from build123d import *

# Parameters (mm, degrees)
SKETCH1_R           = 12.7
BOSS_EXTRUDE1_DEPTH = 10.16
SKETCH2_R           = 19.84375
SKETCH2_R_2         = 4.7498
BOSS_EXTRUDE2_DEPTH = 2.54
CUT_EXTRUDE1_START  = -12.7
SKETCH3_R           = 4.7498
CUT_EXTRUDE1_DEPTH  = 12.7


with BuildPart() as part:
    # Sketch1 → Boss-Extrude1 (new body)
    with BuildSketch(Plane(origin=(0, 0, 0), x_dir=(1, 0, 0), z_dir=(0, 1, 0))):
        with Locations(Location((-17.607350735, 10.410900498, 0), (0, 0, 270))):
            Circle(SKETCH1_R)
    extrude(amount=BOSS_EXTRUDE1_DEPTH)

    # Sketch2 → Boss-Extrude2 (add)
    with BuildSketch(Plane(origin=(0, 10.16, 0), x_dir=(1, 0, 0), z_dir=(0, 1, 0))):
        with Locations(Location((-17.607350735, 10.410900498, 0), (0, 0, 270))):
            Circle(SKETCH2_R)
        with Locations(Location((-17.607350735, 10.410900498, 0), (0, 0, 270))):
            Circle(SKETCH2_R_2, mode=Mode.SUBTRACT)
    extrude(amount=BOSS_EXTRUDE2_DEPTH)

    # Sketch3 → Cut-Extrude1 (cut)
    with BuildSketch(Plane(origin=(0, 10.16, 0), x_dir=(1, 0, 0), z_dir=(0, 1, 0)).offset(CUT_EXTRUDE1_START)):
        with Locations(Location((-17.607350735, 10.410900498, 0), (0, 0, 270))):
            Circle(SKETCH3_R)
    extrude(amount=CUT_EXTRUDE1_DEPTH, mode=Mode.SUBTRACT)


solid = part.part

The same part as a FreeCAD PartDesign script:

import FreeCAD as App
import Part
import Sketcher
Q = App.Units.Quantity

doc = App.newDocument("Part")
body = doc.addObject("PartDesign::Body", "Body")

# Sketch on XZ plane
sketch1 = doc.addObject("Sketcher::SketchObject", "Sketch")
body.addObject(sketch1)
sketch1.AttachmentSupport = (doc.XZ_Plane, [""])
sketch1.MapMode = "FlatFace"
sketch1.addGeometry(Part.Circle(App.Vector(-18, -10, 0), App.Vector(0, 0, 1), 13), False)
sketch1.addConstraint(Sketcher.Constraint("Diameter", 0, Q("1 in")))
sketch1.addConstraint(Sketcher.Constraint("DistanceY", 0, 3, -1, 1, Q("10.4109 mm")))
sketch1.addConstraint(Sketcher.Constraint("DistanceX", 0, 3, -1, 1, Q("17.607351 mm")))
pad1 = doc.addObject("PartDesign::Pad", "Pad")
body.addObject(pad1)
pad1.Profile = sketch1
pad1.Length = Q("0.4 in")
pad1.Reversed = True

# Sketch on XZ plane
sketch2 = doc.addObject("Sketcher::SketchObject", "Sketch001")
body.addObject(sketch2)
sketch2.AttachmentSupport = (doc.XZ_Plane, [""])
sketch2.MapMode = "FlatFace"
sketch2.AttachmentOffset = App.Placement(App.Vector(0, 0, -0.4 * 25.4), App.Rotation())
sketch2.addGeometry(Part.Circle(App.Vector(-17.6, -10.4, 0), App.Vector(0, 0, 1), 19.8), False)
sketch2.addGeometry(Part.Circle(App.Vector(-17.6, -10.4, 0), App.Vector(0, 0, 1), 4.7), False)
sketch2.addConstraint(Sketcher.Constraint("Coincident", 1, 3, 0, 3))
sketch2.addConstraint(Sketcher.Constraint("Diameter", 0, Q("1.5625 in")))
sketch2.addConstraint(Sketcher.Constraint("Diameter", 1, Q("0.374 in")))
sketch2.addConstraint(Sketcher.Constraint("DistanceY", 0, 3, -1, 1, Q("10.4109 mm")))
sketch2.addConstraint(Sketcher.Constraint("DistanceX", 0, 3, -1, 1, Q("17.607351 mm")))
pad2 = doc.addObject("PartDesign::Pad", "Pad001")
body.addObject(pad2)
pad2.Profile = sketch2
pad2.Length = Q("0.1 in")
pad2.Reversed = True

# Sketch on XZ plane
sketch3 = doc.addObject("Sketcher::SketchObject", "Sketch002")
body.addObject(sketch3)
sketch3.AttachmentSupport = (doc.XZ_Plane, [""])
sketch3.MapMode = "FlatFace"
sketch3.AttachmentOffset = App.Placement(App.Vector(0, 0, 0.1 * 25.4), App.Rotation())
sketch3.addGeometry(Part.Circle(App.Vector(-17.6, -10.4, 0), App.Vector(0, 0, 1), 4.7), False)
sketch3.addConstraint(Sketcher.Constraint("Diameter", 0, Q("0.374 in")))
sketch3.addConstraint(Sketcher.Constraint("DistanceY", 0, 3, -1, 1, Q("10.4109 mm")))
sketch3.addConstraint(Sketcher.Constraint("DistanceX", 0, 3, -1, 1, Q("17.607351 mm")))
pocket1 = doc.addObject("PartDesign::Pocket", "Pocket")
body.addObject(pocket1)
pocket1.Profile = sketch3
pocket1.Length = Q("0.5 in")

doc.recompute()
